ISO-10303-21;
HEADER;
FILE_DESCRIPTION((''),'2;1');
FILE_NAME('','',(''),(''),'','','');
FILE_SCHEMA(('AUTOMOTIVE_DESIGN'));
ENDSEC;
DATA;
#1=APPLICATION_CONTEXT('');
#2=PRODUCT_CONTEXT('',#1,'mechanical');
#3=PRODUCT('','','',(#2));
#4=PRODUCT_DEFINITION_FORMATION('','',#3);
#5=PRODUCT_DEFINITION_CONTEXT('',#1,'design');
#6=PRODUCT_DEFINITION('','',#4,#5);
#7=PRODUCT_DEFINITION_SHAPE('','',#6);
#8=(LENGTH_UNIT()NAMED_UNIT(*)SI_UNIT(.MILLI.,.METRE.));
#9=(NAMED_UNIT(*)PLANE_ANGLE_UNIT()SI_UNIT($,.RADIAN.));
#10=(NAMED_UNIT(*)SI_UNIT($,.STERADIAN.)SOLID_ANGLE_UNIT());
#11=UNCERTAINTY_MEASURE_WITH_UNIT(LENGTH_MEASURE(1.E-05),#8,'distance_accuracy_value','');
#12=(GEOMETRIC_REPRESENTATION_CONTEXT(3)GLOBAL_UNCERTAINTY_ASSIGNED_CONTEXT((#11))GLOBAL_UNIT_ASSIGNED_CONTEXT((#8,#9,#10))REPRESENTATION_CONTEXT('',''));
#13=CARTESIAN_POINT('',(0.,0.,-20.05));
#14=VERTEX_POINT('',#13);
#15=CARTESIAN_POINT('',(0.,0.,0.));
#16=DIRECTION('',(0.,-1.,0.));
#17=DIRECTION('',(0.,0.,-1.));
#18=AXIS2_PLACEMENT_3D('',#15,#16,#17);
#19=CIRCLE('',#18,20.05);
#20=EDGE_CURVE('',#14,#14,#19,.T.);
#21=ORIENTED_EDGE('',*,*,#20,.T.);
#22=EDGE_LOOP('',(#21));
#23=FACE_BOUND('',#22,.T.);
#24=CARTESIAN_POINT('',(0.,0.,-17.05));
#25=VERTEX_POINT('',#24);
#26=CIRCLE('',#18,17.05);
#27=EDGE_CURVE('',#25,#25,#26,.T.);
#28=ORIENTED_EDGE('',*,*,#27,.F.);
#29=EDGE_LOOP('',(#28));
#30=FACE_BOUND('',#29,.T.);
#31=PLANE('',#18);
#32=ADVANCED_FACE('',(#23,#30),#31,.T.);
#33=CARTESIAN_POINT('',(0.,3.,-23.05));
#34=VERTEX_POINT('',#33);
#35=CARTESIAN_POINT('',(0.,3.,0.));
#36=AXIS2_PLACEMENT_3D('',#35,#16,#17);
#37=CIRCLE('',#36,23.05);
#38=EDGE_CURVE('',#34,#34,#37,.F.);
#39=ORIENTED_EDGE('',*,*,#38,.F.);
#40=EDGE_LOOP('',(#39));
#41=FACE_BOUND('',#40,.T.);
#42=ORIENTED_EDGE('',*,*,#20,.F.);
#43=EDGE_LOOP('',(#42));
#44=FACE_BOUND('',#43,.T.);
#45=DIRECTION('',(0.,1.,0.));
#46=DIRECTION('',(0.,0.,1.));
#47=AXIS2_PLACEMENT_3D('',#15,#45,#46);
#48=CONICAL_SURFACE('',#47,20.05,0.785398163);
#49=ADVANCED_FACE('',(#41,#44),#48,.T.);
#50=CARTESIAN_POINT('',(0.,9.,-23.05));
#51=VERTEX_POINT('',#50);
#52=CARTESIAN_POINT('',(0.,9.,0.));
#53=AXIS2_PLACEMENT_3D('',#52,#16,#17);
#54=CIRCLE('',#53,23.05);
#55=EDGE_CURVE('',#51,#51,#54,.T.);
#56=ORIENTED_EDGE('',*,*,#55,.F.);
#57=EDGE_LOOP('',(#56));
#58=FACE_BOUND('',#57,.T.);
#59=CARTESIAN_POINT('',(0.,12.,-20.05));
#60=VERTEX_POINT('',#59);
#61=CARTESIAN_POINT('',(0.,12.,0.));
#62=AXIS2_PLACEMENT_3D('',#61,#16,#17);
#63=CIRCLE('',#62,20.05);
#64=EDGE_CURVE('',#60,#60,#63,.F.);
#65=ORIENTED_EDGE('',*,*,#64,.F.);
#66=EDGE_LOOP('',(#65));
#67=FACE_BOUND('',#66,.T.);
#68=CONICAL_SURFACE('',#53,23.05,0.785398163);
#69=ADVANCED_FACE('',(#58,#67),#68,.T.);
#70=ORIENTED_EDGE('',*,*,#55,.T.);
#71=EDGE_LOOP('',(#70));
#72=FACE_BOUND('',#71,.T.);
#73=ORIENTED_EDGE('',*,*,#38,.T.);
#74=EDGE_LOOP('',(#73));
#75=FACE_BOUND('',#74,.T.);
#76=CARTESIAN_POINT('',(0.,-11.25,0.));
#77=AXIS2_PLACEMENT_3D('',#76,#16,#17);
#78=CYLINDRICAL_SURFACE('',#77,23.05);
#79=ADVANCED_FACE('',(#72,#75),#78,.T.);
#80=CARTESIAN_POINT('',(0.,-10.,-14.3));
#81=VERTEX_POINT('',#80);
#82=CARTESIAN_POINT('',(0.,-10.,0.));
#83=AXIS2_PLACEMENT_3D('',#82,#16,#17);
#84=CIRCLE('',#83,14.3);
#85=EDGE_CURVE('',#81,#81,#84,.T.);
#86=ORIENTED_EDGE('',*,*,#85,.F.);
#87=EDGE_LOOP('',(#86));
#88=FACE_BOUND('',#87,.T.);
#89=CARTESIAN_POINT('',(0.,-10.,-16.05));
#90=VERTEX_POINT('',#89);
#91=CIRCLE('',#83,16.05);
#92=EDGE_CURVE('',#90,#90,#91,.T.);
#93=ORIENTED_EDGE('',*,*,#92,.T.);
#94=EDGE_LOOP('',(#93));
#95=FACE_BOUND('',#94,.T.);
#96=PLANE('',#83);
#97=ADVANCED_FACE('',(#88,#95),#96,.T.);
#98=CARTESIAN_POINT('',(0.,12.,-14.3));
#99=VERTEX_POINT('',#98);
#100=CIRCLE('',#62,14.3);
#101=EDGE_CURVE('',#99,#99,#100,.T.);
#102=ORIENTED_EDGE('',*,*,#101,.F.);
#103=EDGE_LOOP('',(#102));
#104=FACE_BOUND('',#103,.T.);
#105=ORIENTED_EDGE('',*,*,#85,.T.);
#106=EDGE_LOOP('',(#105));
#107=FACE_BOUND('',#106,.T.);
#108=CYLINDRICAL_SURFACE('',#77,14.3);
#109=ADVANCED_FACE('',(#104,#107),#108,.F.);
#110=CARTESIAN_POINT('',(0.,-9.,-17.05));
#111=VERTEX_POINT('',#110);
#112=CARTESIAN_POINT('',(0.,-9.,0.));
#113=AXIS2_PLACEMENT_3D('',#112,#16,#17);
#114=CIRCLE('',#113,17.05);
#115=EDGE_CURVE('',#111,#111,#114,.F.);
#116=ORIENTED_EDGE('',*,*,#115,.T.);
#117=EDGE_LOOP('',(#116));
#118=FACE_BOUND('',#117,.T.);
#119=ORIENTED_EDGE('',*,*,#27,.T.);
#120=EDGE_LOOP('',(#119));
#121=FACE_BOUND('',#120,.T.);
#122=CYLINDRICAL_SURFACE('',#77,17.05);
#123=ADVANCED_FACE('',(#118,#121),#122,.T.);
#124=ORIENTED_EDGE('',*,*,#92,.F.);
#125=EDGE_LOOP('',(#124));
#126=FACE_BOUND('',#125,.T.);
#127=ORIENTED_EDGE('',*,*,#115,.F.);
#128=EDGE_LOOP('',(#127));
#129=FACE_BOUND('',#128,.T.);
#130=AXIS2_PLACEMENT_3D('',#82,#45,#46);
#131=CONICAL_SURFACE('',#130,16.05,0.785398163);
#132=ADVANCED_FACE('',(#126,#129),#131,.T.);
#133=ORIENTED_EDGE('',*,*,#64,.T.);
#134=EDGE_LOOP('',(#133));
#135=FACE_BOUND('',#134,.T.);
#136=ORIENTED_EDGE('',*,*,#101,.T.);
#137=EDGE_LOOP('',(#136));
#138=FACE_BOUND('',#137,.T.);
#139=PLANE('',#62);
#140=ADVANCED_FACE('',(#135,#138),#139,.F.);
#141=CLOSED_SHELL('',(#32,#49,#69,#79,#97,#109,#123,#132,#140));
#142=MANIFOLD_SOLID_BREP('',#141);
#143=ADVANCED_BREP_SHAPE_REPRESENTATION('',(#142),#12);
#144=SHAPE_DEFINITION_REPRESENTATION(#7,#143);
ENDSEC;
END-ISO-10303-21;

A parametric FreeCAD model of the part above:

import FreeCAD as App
import Part
import Sketcher
from FreeCAD import Vector


def edges_at(feature, points):
    """Names of the edges that pass closest to the given points."""
    edges = feature.Shape.Edges
    near = lambda p: min(range(len(edges)), key=lambda i: edges[i].distToShape(Part.Vertex(*p))[0])
    return sorted({f"Edge{near(p) + 1}" for p in points})


def add_polygon(sketch, points):
    """Adds a closed chain of lines whose ends are joined by coincident constraints."""
    first, n = sketch.GeometryCount, len(points)
    for a, b in zip(points, points[1:] + points[:1]):
        sketch.addGeometry(Part.LineSegment(App.Vector(*a, 0), App.Vector(*b, 0)), False)
    for i in range(n):
        sketch.addConstraint(Sketcher.Constraint("Coincident", first + i, 2, first + (i + 1) % n, 1))

doc = App.newDocument("Part")
body = doc.addObject("PartDesign::Body", "Body")

# Sketch on YZ plane
sketch1 = body.newObject("Sketcher::SketchObject", "Sketch")
sketch1.AttachmentSupport = (doc.getObject("YZ_Plane"), [""])
sketch1.MapMode = "FlatFace"
add_polygon(sketch1, [(12, -14.3), (-10, -14.3), (-10, -17.1), (0, -17.1), (0, -23.1), (12, -23.1)])  # lines 0-5
sketch1.addConstraint(Sketcher.Constraint("Horizontal", 0))
sketch1.addConstraint(Sketcher.Constraint("Vertical", 1))
sketch1.addConstraint(Sketcher.Constraint("Horizontal", 2))
sketch1.addConstraint(Sketcher.Constraint("Vertical", 3))
sketch1.addConstraint(Sketcher.Constraint("Horizontal", 4))
sketch1.addConstraint(Sketcher.Constraint("Vertical", 5))
sketch1.addConstraint(Sketcher.Constraint("PointOnObject", 2, 2, -2))
sketch1.addConstraint(Sketcher.Constraint("DistanceX", 0, 2, 0, 1, 22.0))
sketch1.addConstraint(Sketcher.Constraint("DistanceX", 2, 1, 2, 2, 10.0))
sketch1.addConstraint(Sketcher.Constraint("DistanceY", 3, 2, 3, 1, 6.0))
sketch1.addConstraint(Sketcher.Constraint("DistanceY", 1, 2, 1, 1, 2.75))
sketch1.addConstraint(Sketcher.Constraint("DistanceY", 0, 2, -1, 1, 14.3))
revolution = body.newObject("PartDesign::Revolution", "Revolution")
revolution.Profile = sketch1
revolution.ReferenceAxis = (sketch1, ["H_Axis"])
revolution.Angle = 360
doc.recompute()

chamfer = body.newObject("PartDesign::Chamfer", "Chamfer")
chamfer.Base = (revolution, edges_at(revolution, [(0, 12, 23.05), (0, 0, 23.05)]))
chamfer.Size = 3
doc.recompute()

chamfer2 = body.newObject("PartDesign::Chamfer", "Chamfer001")
chamfer2.Base = (chamfer, edges_at(chamfer, [(0, -10, 17.05)]))
chamfer2.Size = 1

doc.recompute()
